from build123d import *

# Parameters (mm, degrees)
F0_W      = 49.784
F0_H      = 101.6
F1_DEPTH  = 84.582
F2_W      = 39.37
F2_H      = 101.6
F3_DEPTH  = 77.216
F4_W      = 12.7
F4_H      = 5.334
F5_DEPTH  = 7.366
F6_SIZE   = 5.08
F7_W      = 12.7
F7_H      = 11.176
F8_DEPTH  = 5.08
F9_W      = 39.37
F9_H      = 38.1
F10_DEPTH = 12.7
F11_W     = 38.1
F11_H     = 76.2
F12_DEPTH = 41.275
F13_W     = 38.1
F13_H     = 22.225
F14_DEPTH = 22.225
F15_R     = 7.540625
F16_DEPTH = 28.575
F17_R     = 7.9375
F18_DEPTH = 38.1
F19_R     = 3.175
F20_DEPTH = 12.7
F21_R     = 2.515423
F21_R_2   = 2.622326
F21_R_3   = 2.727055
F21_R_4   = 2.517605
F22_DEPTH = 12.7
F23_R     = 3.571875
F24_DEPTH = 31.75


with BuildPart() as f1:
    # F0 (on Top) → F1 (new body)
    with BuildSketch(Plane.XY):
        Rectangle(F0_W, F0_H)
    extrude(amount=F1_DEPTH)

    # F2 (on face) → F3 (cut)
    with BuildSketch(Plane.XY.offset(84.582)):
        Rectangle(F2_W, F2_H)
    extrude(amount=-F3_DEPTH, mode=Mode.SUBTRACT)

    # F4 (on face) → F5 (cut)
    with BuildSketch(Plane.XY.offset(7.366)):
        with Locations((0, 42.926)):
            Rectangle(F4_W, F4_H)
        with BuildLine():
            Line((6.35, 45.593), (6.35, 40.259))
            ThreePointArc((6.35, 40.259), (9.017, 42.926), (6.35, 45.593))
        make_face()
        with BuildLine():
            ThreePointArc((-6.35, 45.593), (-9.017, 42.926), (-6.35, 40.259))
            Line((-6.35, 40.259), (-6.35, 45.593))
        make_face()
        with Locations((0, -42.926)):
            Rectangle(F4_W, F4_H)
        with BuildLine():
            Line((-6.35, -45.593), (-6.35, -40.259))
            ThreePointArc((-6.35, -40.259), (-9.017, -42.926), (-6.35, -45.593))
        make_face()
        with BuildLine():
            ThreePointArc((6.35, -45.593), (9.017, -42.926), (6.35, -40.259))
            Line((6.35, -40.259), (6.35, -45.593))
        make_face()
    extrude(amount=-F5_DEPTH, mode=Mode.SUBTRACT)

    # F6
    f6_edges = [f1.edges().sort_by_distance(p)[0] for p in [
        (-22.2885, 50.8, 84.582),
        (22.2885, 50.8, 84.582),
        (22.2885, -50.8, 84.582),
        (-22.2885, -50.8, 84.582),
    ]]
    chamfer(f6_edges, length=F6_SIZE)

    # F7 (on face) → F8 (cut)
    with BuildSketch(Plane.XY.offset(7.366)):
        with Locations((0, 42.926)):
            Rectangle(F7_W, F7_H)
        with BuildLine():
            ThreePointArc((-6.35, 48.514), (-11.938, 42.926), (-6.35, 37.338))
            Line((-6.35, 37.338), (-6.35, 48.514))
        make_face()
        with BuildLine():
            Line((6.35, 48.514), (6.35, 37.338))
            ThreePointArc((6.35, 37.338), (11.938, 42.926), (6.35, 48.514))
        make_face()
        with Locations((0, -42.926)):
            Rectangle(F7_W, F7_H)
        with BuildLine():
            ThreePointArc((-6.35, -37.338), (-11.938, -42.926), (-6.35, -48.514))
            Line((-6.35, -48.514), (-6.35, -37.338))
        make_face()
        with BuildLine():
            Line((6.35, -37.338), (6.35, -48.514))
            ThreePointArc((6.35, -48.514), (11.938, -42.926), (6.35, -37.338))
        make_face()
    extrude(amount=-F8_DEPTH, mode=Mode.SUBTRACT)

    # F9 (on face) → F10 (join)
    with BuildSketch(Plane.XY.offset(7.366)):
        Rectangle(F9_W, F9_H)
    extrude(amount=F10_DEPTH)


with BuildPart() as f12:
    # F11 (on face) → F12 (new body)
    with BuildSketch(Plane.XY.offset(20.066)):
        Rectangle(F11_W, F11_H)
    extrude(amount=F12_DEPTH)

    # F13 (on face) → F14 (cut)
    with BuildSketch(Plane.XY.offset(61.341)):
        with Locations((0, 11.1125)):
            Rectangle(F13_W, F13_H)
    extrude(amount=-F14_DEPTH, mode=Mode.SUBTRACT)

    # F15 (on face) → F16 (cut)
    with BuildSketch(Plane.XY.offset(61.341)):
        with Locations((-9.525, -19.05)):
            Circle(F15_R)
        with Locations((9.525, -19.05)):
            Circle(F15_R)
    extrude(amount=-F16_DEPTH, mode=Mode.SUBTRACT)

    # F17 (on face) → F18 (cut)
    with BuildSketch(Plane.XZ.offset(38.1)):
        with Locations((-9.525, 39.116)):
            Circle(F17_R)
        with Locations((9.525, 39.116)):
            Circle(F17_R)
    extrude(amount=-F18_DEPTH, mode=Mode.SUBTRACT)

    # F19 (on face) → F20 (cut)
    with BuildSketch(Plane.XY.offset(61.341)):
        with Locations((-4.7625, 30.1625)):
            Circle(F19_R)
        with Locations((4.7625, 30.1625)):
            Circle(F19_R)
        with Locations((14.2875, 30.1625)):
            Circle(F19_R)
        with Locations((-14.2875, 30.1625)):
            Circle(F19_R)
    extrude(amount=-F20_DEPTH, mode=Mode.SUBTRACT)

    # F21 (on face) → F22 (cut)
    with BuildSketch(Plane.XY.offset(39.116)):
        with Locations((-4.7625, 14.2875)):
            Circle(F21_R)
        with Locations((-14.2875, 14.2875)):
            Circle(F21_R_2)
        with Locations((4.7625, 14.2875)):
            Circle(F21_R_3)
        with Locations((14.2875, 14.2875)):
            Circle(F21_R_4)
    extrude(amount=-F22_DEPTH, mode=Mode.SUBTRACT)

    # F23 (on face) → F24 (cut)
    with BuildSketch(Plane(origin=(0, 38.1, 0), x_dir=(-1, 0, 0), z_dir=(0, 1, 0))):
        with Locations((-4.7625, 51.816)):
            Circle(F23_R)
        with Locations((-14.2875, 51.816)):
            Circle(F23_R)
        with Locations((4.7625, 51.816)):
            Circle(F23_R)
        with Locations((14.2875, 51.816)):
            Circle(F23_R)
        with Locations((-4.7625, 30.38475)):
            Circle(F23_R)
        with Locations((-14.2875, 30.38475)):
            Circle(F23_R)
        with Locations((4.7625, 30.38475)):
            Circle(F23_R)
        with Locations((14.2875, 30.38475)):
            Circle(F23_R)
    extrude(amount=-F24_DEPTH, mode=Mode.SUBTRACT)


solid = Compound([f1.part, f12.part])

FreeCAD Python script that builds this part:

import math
import FreeCAD as App
import Part
import Sketcher
Q = App.Units.Quantity


def edges_at(feature, points):
    """Names of the edges that pass closest to the given points."""
    edges = feature.Shape.Edges
    near = lambda p: min(range(len(edges)), key=lambda i: edges[i].distToShape(Part.Vertex(*p))[0])
    return sorted({f"Edge{near(p) + 1}" for p in points})


def add_polygon(sketch, points):
    """Adds a closed chain of lines whose ends are joined by coincident constraints."""
    first, n = sketch.GeometryCount, len(points)
    for a, b in zip(points, points[1:] + points[:1]):
        sketch.addGeometry(Part.LineSegment(App.Vector(*a, 0), App.Vector(*b, 0)), False)
    for i in range(n):
        sketch.addConstraint(Sketcher.Constraint("Coincident", first + i, 2, first + (i + 1) % n, 1))

doc = App.newDocument("Part")
body = doc.addObject("PartDesign::Body", "Body")

# Sketch on XY plane
sketch1 = body.newObject("Sketcher::SketchObject", "Sketch")
sketch1.AttachmentSupport = (doc.getObject("XY_Plane"), [""])
sketch1.MapMode = "FlatFace"
add_polygon(sketch1, [(-25, 51), (-25, -51), (25, -51), (25, 51)])  # lines 0-3
sketch1.addConstraint([
    Sketcher.Constraint("Vertical", 0),
    Sketcher.Constraint("Horizontal", 1),
    Sketcher.Constraint("Vertical", 2),
    Sketcher.Constraint("Horizontal", 3),
    Sketcher.Constraint("Symmetric", 0, 2, 2, 2, -1, 1),
    Sketcher.Constraint("DistanceY", 0, 2, 0, 1, Q("4 in")),
    Sketcher.Constraint("DistanceX", 1, 1, 1, 2, Q("1.96 in")),
])
pad1 = body.newObject("PartDesign::Pad", "Pad")
pad1.Profile = sketch1
pad1.Length = Q("3.33 in")

# Sketch on XY plane
sketch2 = body.newObject("Sketcher::SketchObject", "Sketch001")
sketch2.AttachmentSupport = (doc.getObject("XY_Plane"), [""])
sketch2.MapMode = "FlatFace"
sketch2.AttachmentOffset = App.Placement(App.Vector(0, 0, 3.33 * 25.4), App.Rotation())
add_polygon(sketch2, [(-20, 51), (-20, -51), (20, -51), (20, 51)])  # lines 0-3
sketch2.addConstraint([
    Sketcher.Constraint("Vertical", 0),
    Sketcher.Constraint("Horizontal", 1),
    Sketcher.Constraint("Vertical", 2),
    Sketcher.Constraint("Horizontal", 3),
    Sketcher.Constraint("Symmetric", 0, 2, 2, 2, -1, 1),
    Sketcher.Constraint("DistanceY", 0, 2, 0, 1, Q("4 in")),
    Sketcher.Constraint("DistanceX", 1, 1, 1, 2, Q("1.55 in")),
])
pocket1 = body.newObject("PartDesign::Pocket", "Pocket")
pocket1.Profile = sketch2
pocket1.Length = Q("3.04 in")

# Sketch on XY plane
sketch3 = body.newObject("Sketcher::SketchObject", "Sketch002")
sketch3.AttachmentSupport = (doc.getObject("XY_Plane"), [""])
sketch3.MapMode = "FlatFace"
sketch3.AttachmentOffset = App.Placement(App.Vector(0, 0, 0.29 * 25.4), App.Rotation())
sketch3.addGeometry([
    Part.LineSegment(App.Vector(-6.3, 40.3, 0), App.Vector(6.3, 40.3, 0)),  # 0
    Part.ArcOfCircle(Part.Circle(App.Vector(6.3, 42.9, 0), App.Vector(0, 0, 1), 2.7), math.radians(-90), math.radians(90)),  # 1
    Part.LineSegment(App.Vector(6.3, 45.6, 0), App.Vector(-6.3, 45.6, 0)),  # 2
    Part.ArcOfCircle(Part.Circle(App.Vector(-6.3, 42.9, 0), App.Vector(0, 0, 1), 2.7), math.radians(90), math.radians(270)),  # 3
    Part.LineSegment(App.Vector(-6.3, -45.6, 0), App.Vector(6.3, -45.6, 0)),  # 4
    Part.ArcOfCircle(Part.Circle(App.Vector(6.3, -42.9, 0), App.Vector(0, 0, 1), 2.7), math.radians(-90), math.radians(90)),  # 5
    Part.LineSegment(App.Vector(6.3, -40.3, 0), App.Vector(-6.3, -40.3, 0)),  # 6
    Part.ArcOfCircle(Part.Circle(App.Vector(-6.3, -42.9, 0), App.Vector(0, 0, 1), 2.7), math.radians(90), math.radians(270)),  # 7
], False)
sketch3.addConstraint([
    Sketcher.Constraint("Tangent", 0, 2, 1, 1),
    Sketcher.Constraint("Tangent", 1, 2, 2, 1),
    Sketcher.Constraint("Tangent", 2, 2, 3, 1),
    Sketcher.Constraint("Tangent", 3, 2, 0, 1),
    Sketcher.Constraint("Tangent", 4, 2, 5, 1),
    Sketcher.Constraint("Tangent", 5, 2, 6, 1),
    Sketcher.Constraint("Tangent", 6, 2, 7, 1),
    Sketcher.Constraint("Tangent", 7, 2, 4, 1),
    Sketcher.Constraint("Horizontal", 0),
    Sketcher.Constraint("Horizontal", 2),
    Sketcher.Constraint("Horizontal", 4),
    Sketcher.Constraint("Horizontal", 6),
    Sketcher.Constraint("Equal", 3, 5),
    Sketcher.Constraint("Symmetric", 3, 3, 5, 3, -1, 1),
    Sketcher.Constraint("Vertical", 1, 3, 5, 3),
    Sketcher.Constraint("Vertical", 3, 3, 7, 3),
    Sketcher.Constraint("DistanceX", 0, 1, 0, 2, Q("0.5 in")),
    Sketcher.Constraint("Radius", 1, Q("0.105 in")),
    Sketcher.Constraint("DistanceY", -1, 1, 1, 3, Q("1.69 in")),
])
pocket2 = body.newObject("PartDesign::Pocket", "Pocket001")
pocket2.Profile = sketch3
pocket2.Length = Q("0.29 in")
doc.recompute()

chamfer = body.newObject("PartDesign::Chamfer", "Chamfer")
chamfer.Base = (pocket2, edges_at(pocket2, [
    (-22.288, 50.8, 84.582),
    (22.288, 50.8, 84.582),
    (22.288, -50.8, 84.582),
    (-22.288, -50.8, 84.582),
]))
chamfer.Size = Q("0.2 in")

# Sketch on XY plane
sketch4 = body.newObject("Sketcher::SketchObject", "Sketch003")
sketch4.AttachmentSupport = (doc.getObject("XY_Plane"), [""])
sketch4.MapMode = "FlatFace"
sketch4.AttachmentOffset = App.Placement(App.Vector(0, 0, 0.29 * 25.4), App.Rotation())
sketch4.addGeometry([
    Part.LineSegment(App.Vector(-6, 37, 0), App.Vector(6, 37, 0)),  # 0
    Part.ArcOfCircle(Part.Circle(App.Vector(6, 43, 0), App.Vector(0, 0, 1), 6), math.radians(-90), math.radians(90)),  # 1
    Part.LineSegment(App.Vector(6, 49, 0), App.Vector(-6, 49, 0)),  # 2
    Part.ArcOfCircle(Part.Circle(App.Vector(-6, 43, 0), App.Vector(0, 0, 1), 6), math.radians(90), math.radians(270)),  # 3
    Part.LineSegment(App.Vector(-6, -49, 0), App.Vector(6, -49, 0)),  # 4
    Part.ArcOfCircle(Part.Circle(App.Vector(6, -43, 0), App.Vector(0, 0, 1), 6), math.radians(-90), math.radians(90)),  # 5
    Part.LineSegment(App.Vector(6, -37, 0), App.Vector(-6, -37, 0)),  # 6
    Part.ArcOfCircle(Part.Circle(App.Vector(-6, -43, 0), App.Vector(0, 0, 1), 6), math.radians(90), math.radians(270)),  # 7
], False)
sketch4.addConstraint([
    Sketcher.Constraint("Tangent", 0, 2, 1, 1),
    Sketcher.Constraint("Tangent", 1, 2, 2, 1),
    Sketcher.Constraint("Tangent", 2, 2, 3, 1),
    Sketcher.Constraint("Tangent", 3, 2, 0, 1),
    Sketcher.Constraint("Tangent", 4, 2, 5, 1),
    Sketcher.Constraint("Tangent", 5, 2, 6, 1),
    Sketcher.Constraint("Tangent", 6, 2, 7, 1),
    Sketcher.Constraint("Tangent", 7, 2, 4, 1),
    Sketcher.Constraint("Horizontal", 0),
    Sketcher.Constraint("Horizontal", 2),
    Sketcher.Constraint("Horizontal", 4),
    Sketcher.Constraint("Horizontal", 6),
    Sketcher.Constraint("Equal", 3, 5),
    Sketcher.Constraint("Symmetric", 3, 3, 5, 3, -1, 1),
    Sketcher.Constraint("Vertical", 1, 3, 5, 3),
    Sketcher.Constraint("Vertical", 3, 3, 7, 3),
    Sketcher.Constraint("Radius", 1, Q("0.22 in")),
    Sketcher.Constraint("DistanceX", 0, 1, 0, 2, Q("0.5 in")),
    Sketcher.Constraint("DistanceY", 5, 3, 1, 2, Q("3.6 in")),
])
pocket3 = body.newObject("PartDesign::Pocket", "Pocket002")
pocket3.Profile = sketch4
pocket3.Length = Q("0.2 in")

# Sketch on XY plane
sketch5 = body.newObject("Sketcher::SketchObject", "Sketch004")
sketch5.AttachmentSupport = (doc.getObject("XY_Plane"), [""])
sketch5.MapMode = "FlatFace"
sketch5.AttachmentOffset = App.Placement(App.Vector(0, 0, 0.29 * 25.4), App.Rotation())
add_polygon(sketch5, [(-20, 19), (-20, -19), (20, -19), (20, 19)])  # lines 0-3
sketch5.addConstraint([
    Sketcher.Constraint("Vertical", 0),
    Sketcher.Constraint("Horizontal", 1),
    Sketcher.Constraint("Vertical", 2),
    Sketcher.Constraint("Horizontal", 3),
    Sketcher.Constraint("Symmetric", 0, 2, 2, 2, -1, 1),
    Sketcher.Constraint("DistanceY", 0, 2, 0, 1, Q("1.5 in")),
    Sketcher.Constraint("DistanceX", 1, 1, 1, 2, Q("1.55 in")),
])
pad2 = body.newObject("PartDesign::Pad", "Pad001")
pad2.Profile = sketch5
pad2.Length = Q("0.5 in")
body2 = doc.addObject("PartDesign::Body", "Body001")

# Sketch on XY plane
sketch6 = body2.newObject("Sketcher::SketchObject", "Sketch005")
sketch6.AttachmentSupport = (doc.getObject("XY_Plane001"), [""])
sketch6.MapMode = "FlatFace"
sketch6.AttachmentOffset = App.Placement(App.Vector(0, 0, 0.79 * 25.4), App.Rotation())
add_polygon(sketch6, [(-19, 38), (-19, -38), (19, -38), (19, 38)])  # lines 0-3
sketch6.addConstraint([
    Sketcher.Constraint("Vertical", 0),
    Sketcher.Constraint("Horizontal", 1),
    Sketcher.Constraint("Vertical", 2),
    Sketcher.Constraint("Horizontal", 3),
    Sketcher.Constraint("Symmetric", 0, 2, 2, 2, -1, 1),
    Sketcher.Constraint("DistanceY", 0, 2, 0, 1, Q("3 in")),
    Sketcher.Constraint("DistanceX", 1, 1, 1, 2, Q("1.5 in")),
])
pad3 = body2.newObject("PartDesign::Pad", "Pad002")
pad3.Profile = sketch6
pad3.Length = Q("1.625 in")

# Sketch on XY plane
sketch7 = body2.newObject("Sketcher::SketchObject", "Sketch006")
sketch7.AttachmentSupport = (doc.getObject("XY_Plane001"), [""])
sketch7.MapMode = "FlatFace"
sketch7.AttachmentOffset = App.Placement(App.Vector(0, 0, 2.415 * 25.4), App.Rotation())
add_polygon(sketch7, [(-19, 22), (-19, 0), (19, 0), (19, 22)])  # lines 0-3
sketch7.addConstraint([
    Sketcher.Constraint("Vertical", 0),
    Sketcher.Constraint("Horizontal", 1),
    Sketcher.Constraint("Vertical", 2),
    Sketcher.Constraint("Horizontal", 3),
    Sketcher.Constraint("Symmetric", 0, 2, 1, 2, -1, 1),
    Sketcher.Constraint("DistanceX", 1, 1, 1, 2, Q("1.5 in")),
    Sketcher.Constraint("DistanceY", 0, 2, 0, 1, Q("0.875 in")),
])
pocket4 = body2.newObject("PartDesign::Pocket", "Pocket003")
pocket4.Profile = sketch7
pocket4.Length = Q("0.875 in")

# Sketch on XY plane
sketch8 = body2.newObject("Sketcher::SketchObject", "Sketch007")
sketch8.AttachmentSupport = (doc.getObject("XY_Plane001"), [""])
sketch8.MapMode = "FlatFace"
sketch8.AttachmentOffset = App.Placement(App.Vector(0, 0, 2.415 * 25.4), App.Rotation())
sketch8.addGeometry([
    Part.Circle(App.Vector(-10, -19, 0), App.Vector(0, 0, 1), 8),
    Part.Circle(App.Vector(10, -19, 0), App.Vector(0, 0, 1), 8),
], False)
sketch8.addConstraint([
    Sketcher.Constraint("Equal", 0, 1),
    Sketcher.Constraint("Symmetric", 0, 3, 1, 3, -2),
    Sketcher.Constraint("Diameter", 0, Q("0.59375 in")),
    Sketcher.Constraint("DistanceY", 0, 3, -1, 1, Q("0.75 in")),
    Sketcher.Constraint("DistanceX", 0, 3, 1, 3, Q("0.75 in")),
])
pocket5 = body2.newObject("PartDesign::Pocket", "Pocket004")
pocket5.Profile = sketch8
pocket5.Length = Q("1.125 in")

# Sketch on XZ plane
sketch9 = body2.newObject("Sketcher::SketchObject", "Sketch008")
sketch9.AttachmentSupport = (doc.getObject("XZ_Plane001"), [""])
sketch9.MapMode = "FlatFace"
sketch9.AttachmentOffset = App.Placement(App.Vector(0, 0, 1.5 * 25.4), App.Rotation())
sketch9.addGeometry([
    Part.Circle(App.Vector(-10, 39, 0), App.Vector(0, 0, 1), 8),
    Part.Circle(App.Vector(10, 39, 0), App.Vector(0, 0, 1), 8),
], False)
sketch9.addConstraint([
    Sketcher.Constraint("Equal", 0, 1),
    Sketcher.Constraint("Symmetric", 0, 3, 1, 3, -2),
    Sketcher.Constraint("Diameter", 0, Q("0.625 in")),
    Sketcher.Constraint("DistanceY", -1, 1, 0, 3, Q("1.54 in")),
    Sketcher.Constraint("DistanceX", 0, 3, 1, 3, Q("0.75 in")),
])
pocket6 = body2.newObject("PartDesign::Pocket", "Pocket005")
pocket6.Profile = sketch9
pocket6.Length = Q("1.5 in")

# Sketch on XY plane
sketch10 = body2.newObject("Sketcher::SketchObject", "Sketch009")
sketch10.AttachmentSupport = (doc.getObject("XY_Plane001"), [""])
sketch10.MapMode = "FlatFace"
sketch10.AttachmentOffset = App.Placement(App.Vector(0, 0, 2.415 * 25.4), App.Rotation())
sketch10.addGeometry([
    Part.Circle(App.Vector(-4.8, 30.2, 0), App.Vector(0, 0, 1), 3.2),
    Part.Circle(App.Vector(4.8, 30.2, 0), App.Vector(0, 0, 1), 3.2),
    Part.Circle(App.Vector(14.3, 30.2, 0), App.Vector(0, 0, 1), 3.2),
    Part.Circle(App.Vector(-14.3, 30.2, 0), App.Vector(0, 0, 1), 3.2),
], False)
sketch10.addConstraint([
    Sketcher.Constraint("Equal", 0, 1),
    Sketcher.Constraint("Equal", 1, 2),
    Sketcher.Constraint("Equal", 2, 3),
    Sketcher.Constraint("Symmetric", 0, 3, 1, 3, -2),
    Sketcher.Constraint("Symmetric", 2, 3, 3, 3, -2),
    Sketcher.Constraint("Horizontal", 1, 3, 2, 3),
    Sketcher.Constraint("Diameter", 0, Q("0.25 in")),
    Sketcher.Constraint("DistanceX", 0, 3, 2, 3, Q("0.75 in")),
    Sketcher.Constraint("DistanceX", 0, 3, -1, 1, Q("0.1875 in")),
    Sketcher.Constraint("DistanceY", -1, 1, 0, 3, Q("1.1875 in")),
])
pocket7 = body2.newObject("PartDesign::Pocket", "Pocket006")
pocket7.Profile = sketch10
pocket7.Length = Q("0.5 in")

# Sketch on XY plane
sketch11 = body2.newObject("Sketcher::SketchObject", "Sketch010")
sketch11.AttachmentSupport = (doc.getObject("XY_Plane001"), [""])
sketch11.MapMode = "FlatFace"
sketch11.AttachmentOffset = App.Placement(App.Vector(0, 0, 1.54 * 25.4), App.Rotation())
sketch11.addGeometry([
    Part.Circle(App.Vector(-4.8, 14.3, 0), App.Vector(0, 0, 1), 2.5),
    Part.Circle(App.Vector(-14.3, 14.3, 0), App.Vector(0, 0, 1), 2.6),
    Part.Circle(App.Vector(4.8, 14.3, 0), App.Vector(0, 0, 1), 2.7),
    Part.Circle(App.Vector(14.3, 14.3, 0), App.Vector(0, 0, 1), 2.5),
], False)
sketch11.addConstraint([
    Sketcher.Constraint("Symmetric", 0, 3, 2, 3, -2),
    Sketcher.Constraint("Symmetric", 1, 3, 3, 3, -2),
    Sketcher.Constraint("Horizontal", 0, 3, 1, 3),
    Sketcher.Constraint("DistanceX", 1, 3, 2, 3, Q("0.75 in")),
    Sketcher.Constraint("Diameter", 2, 5.45411),
    Sketcher.Constraint("Diameter", 3, 5.03521),
    Sketcher.Constraint("DistanceX", 0, 3, -1, 1, Q("0.1875 in")),
    Sketcher.Constraint("DistanceY", -1, 1, 0, 3, Q("0.5625 in")),
    Sketcher.Constraint("Diameter", 0, 5.030846),
    Sketcher.Constraint("Diameter", 1, 5.244652),
])
pocket8 = body2.newObject("PartDesign::Pocket", "Pocket007")
pocket8.Profile = sketch11
pocket8.Length = Q("0.5 in")

# Sketch on XZ plane
sketch12 = body2.newObject("Sketcher::SketchObject", "Sketch011")
sketch12.AttachmentSupport = (doc.getObject("XZ_Plane001"), [""])
sketch12.MapMode = "FlatFace"
sketch12.AttachmentOffset = App.Placement(App.Vector(0, 0, -1.5 * 25.4), App.Rotation())
sketch12.addGeometry([
    Part.Circle(App.Vector(4.8, 51.8, 0), App.Vector(0, 0, 1), 3.6),  # 0
    Part.Circle(App.Vector(14.3, 51.8, 0), App.Vector(0, 0, 1), 3.6),  # 1
    Part.Circle(App.Vector(-4.8, 51.8, 0), App.Vector(0, 0, 1), 3.6),  # 2
    Part.Circle(App.Vector(-14.3, 51.8, 0), App.Vector(0, 0, 1), 3.6),  # 3
    Part.Circle(App.Vector(4.8, 30.4, 0), App.Vector(0, 0, 1), 3.6),  # 4
    Part.Circle(App.Vector(14.3, 30.4, 0), App.Vector(0, 0, 1), 3.6),  # 5
    Part.Circle(App.Vector(-4.8, 30.4, 0), App.Vector(0, 0, 1), 3.6),  # 6
    Part.Circle(App.Vector(-14.3, 30.4, 0), App.Vector(0, 0, 1), 3.6),  # 7
], False)
sketch12.addConstraint([
    Sketcher.Constraint("Equal", 0, 1),
    Sketcher.Constraint("Equal", 1, 2),
    Sketcher.Constraint("Equal", 2, 3),
    Sketcher.Constraint("Equal", 3, 4),
    Sketcher.Constraint("Equal", 4, 5),
    Sketcher.Constraint("Equal", 5, 6),
    Sketcher.Constraint("Equal", 6, 7),
    Sketcher.Constraint("Symmetric", 0, 3, 2, 3, -2),
    Sketcher.Constraint("Symmetric", 1, 3, 3, 3, -2),
    Sketcher.Constraint("Symmetric", 4, 3, 6, 3, -2),
    Sketcher.Constraint("Symmetric", 5, 3, 7, 3, -2),
    Sketcher.Constraint("Horizontal", 0, 3, 1, 3),
    Sketcher.Constraint("Horizontal", 4, 3, 5, 3),
    Sketcher.Constraint("Vertical", 0, 3, 4, 3),
    Sketcher.Constraint("Vertical", 1, 3, 5, 3),
    Sketcher.Constraint("Diameter", 0, Q("0.28125 in")),
    Sketcher.Constraint("DistanceY", -1, 1, 0, 3, Q("2.04 in")),
    Sketcher.Constraint("DistanceX", 2, 3, 1, 3, Q("0.75 in")),
    Sketcher.Constraint("DistanceX", -1, 1, 0, 3, Q("0.1875 in")),
    Sketcher.Constraint("DistanceY", 4, 3, 0, 3, Q("0.84375 in")),
])
pocket9 = body2.newObject("PartDesign::Pocket", "Pocket008")
pocket9.Profile = sketch12
pocket9.Length = Q("1.25 in")
pocket9.Reversed = True

doc.recompute()
